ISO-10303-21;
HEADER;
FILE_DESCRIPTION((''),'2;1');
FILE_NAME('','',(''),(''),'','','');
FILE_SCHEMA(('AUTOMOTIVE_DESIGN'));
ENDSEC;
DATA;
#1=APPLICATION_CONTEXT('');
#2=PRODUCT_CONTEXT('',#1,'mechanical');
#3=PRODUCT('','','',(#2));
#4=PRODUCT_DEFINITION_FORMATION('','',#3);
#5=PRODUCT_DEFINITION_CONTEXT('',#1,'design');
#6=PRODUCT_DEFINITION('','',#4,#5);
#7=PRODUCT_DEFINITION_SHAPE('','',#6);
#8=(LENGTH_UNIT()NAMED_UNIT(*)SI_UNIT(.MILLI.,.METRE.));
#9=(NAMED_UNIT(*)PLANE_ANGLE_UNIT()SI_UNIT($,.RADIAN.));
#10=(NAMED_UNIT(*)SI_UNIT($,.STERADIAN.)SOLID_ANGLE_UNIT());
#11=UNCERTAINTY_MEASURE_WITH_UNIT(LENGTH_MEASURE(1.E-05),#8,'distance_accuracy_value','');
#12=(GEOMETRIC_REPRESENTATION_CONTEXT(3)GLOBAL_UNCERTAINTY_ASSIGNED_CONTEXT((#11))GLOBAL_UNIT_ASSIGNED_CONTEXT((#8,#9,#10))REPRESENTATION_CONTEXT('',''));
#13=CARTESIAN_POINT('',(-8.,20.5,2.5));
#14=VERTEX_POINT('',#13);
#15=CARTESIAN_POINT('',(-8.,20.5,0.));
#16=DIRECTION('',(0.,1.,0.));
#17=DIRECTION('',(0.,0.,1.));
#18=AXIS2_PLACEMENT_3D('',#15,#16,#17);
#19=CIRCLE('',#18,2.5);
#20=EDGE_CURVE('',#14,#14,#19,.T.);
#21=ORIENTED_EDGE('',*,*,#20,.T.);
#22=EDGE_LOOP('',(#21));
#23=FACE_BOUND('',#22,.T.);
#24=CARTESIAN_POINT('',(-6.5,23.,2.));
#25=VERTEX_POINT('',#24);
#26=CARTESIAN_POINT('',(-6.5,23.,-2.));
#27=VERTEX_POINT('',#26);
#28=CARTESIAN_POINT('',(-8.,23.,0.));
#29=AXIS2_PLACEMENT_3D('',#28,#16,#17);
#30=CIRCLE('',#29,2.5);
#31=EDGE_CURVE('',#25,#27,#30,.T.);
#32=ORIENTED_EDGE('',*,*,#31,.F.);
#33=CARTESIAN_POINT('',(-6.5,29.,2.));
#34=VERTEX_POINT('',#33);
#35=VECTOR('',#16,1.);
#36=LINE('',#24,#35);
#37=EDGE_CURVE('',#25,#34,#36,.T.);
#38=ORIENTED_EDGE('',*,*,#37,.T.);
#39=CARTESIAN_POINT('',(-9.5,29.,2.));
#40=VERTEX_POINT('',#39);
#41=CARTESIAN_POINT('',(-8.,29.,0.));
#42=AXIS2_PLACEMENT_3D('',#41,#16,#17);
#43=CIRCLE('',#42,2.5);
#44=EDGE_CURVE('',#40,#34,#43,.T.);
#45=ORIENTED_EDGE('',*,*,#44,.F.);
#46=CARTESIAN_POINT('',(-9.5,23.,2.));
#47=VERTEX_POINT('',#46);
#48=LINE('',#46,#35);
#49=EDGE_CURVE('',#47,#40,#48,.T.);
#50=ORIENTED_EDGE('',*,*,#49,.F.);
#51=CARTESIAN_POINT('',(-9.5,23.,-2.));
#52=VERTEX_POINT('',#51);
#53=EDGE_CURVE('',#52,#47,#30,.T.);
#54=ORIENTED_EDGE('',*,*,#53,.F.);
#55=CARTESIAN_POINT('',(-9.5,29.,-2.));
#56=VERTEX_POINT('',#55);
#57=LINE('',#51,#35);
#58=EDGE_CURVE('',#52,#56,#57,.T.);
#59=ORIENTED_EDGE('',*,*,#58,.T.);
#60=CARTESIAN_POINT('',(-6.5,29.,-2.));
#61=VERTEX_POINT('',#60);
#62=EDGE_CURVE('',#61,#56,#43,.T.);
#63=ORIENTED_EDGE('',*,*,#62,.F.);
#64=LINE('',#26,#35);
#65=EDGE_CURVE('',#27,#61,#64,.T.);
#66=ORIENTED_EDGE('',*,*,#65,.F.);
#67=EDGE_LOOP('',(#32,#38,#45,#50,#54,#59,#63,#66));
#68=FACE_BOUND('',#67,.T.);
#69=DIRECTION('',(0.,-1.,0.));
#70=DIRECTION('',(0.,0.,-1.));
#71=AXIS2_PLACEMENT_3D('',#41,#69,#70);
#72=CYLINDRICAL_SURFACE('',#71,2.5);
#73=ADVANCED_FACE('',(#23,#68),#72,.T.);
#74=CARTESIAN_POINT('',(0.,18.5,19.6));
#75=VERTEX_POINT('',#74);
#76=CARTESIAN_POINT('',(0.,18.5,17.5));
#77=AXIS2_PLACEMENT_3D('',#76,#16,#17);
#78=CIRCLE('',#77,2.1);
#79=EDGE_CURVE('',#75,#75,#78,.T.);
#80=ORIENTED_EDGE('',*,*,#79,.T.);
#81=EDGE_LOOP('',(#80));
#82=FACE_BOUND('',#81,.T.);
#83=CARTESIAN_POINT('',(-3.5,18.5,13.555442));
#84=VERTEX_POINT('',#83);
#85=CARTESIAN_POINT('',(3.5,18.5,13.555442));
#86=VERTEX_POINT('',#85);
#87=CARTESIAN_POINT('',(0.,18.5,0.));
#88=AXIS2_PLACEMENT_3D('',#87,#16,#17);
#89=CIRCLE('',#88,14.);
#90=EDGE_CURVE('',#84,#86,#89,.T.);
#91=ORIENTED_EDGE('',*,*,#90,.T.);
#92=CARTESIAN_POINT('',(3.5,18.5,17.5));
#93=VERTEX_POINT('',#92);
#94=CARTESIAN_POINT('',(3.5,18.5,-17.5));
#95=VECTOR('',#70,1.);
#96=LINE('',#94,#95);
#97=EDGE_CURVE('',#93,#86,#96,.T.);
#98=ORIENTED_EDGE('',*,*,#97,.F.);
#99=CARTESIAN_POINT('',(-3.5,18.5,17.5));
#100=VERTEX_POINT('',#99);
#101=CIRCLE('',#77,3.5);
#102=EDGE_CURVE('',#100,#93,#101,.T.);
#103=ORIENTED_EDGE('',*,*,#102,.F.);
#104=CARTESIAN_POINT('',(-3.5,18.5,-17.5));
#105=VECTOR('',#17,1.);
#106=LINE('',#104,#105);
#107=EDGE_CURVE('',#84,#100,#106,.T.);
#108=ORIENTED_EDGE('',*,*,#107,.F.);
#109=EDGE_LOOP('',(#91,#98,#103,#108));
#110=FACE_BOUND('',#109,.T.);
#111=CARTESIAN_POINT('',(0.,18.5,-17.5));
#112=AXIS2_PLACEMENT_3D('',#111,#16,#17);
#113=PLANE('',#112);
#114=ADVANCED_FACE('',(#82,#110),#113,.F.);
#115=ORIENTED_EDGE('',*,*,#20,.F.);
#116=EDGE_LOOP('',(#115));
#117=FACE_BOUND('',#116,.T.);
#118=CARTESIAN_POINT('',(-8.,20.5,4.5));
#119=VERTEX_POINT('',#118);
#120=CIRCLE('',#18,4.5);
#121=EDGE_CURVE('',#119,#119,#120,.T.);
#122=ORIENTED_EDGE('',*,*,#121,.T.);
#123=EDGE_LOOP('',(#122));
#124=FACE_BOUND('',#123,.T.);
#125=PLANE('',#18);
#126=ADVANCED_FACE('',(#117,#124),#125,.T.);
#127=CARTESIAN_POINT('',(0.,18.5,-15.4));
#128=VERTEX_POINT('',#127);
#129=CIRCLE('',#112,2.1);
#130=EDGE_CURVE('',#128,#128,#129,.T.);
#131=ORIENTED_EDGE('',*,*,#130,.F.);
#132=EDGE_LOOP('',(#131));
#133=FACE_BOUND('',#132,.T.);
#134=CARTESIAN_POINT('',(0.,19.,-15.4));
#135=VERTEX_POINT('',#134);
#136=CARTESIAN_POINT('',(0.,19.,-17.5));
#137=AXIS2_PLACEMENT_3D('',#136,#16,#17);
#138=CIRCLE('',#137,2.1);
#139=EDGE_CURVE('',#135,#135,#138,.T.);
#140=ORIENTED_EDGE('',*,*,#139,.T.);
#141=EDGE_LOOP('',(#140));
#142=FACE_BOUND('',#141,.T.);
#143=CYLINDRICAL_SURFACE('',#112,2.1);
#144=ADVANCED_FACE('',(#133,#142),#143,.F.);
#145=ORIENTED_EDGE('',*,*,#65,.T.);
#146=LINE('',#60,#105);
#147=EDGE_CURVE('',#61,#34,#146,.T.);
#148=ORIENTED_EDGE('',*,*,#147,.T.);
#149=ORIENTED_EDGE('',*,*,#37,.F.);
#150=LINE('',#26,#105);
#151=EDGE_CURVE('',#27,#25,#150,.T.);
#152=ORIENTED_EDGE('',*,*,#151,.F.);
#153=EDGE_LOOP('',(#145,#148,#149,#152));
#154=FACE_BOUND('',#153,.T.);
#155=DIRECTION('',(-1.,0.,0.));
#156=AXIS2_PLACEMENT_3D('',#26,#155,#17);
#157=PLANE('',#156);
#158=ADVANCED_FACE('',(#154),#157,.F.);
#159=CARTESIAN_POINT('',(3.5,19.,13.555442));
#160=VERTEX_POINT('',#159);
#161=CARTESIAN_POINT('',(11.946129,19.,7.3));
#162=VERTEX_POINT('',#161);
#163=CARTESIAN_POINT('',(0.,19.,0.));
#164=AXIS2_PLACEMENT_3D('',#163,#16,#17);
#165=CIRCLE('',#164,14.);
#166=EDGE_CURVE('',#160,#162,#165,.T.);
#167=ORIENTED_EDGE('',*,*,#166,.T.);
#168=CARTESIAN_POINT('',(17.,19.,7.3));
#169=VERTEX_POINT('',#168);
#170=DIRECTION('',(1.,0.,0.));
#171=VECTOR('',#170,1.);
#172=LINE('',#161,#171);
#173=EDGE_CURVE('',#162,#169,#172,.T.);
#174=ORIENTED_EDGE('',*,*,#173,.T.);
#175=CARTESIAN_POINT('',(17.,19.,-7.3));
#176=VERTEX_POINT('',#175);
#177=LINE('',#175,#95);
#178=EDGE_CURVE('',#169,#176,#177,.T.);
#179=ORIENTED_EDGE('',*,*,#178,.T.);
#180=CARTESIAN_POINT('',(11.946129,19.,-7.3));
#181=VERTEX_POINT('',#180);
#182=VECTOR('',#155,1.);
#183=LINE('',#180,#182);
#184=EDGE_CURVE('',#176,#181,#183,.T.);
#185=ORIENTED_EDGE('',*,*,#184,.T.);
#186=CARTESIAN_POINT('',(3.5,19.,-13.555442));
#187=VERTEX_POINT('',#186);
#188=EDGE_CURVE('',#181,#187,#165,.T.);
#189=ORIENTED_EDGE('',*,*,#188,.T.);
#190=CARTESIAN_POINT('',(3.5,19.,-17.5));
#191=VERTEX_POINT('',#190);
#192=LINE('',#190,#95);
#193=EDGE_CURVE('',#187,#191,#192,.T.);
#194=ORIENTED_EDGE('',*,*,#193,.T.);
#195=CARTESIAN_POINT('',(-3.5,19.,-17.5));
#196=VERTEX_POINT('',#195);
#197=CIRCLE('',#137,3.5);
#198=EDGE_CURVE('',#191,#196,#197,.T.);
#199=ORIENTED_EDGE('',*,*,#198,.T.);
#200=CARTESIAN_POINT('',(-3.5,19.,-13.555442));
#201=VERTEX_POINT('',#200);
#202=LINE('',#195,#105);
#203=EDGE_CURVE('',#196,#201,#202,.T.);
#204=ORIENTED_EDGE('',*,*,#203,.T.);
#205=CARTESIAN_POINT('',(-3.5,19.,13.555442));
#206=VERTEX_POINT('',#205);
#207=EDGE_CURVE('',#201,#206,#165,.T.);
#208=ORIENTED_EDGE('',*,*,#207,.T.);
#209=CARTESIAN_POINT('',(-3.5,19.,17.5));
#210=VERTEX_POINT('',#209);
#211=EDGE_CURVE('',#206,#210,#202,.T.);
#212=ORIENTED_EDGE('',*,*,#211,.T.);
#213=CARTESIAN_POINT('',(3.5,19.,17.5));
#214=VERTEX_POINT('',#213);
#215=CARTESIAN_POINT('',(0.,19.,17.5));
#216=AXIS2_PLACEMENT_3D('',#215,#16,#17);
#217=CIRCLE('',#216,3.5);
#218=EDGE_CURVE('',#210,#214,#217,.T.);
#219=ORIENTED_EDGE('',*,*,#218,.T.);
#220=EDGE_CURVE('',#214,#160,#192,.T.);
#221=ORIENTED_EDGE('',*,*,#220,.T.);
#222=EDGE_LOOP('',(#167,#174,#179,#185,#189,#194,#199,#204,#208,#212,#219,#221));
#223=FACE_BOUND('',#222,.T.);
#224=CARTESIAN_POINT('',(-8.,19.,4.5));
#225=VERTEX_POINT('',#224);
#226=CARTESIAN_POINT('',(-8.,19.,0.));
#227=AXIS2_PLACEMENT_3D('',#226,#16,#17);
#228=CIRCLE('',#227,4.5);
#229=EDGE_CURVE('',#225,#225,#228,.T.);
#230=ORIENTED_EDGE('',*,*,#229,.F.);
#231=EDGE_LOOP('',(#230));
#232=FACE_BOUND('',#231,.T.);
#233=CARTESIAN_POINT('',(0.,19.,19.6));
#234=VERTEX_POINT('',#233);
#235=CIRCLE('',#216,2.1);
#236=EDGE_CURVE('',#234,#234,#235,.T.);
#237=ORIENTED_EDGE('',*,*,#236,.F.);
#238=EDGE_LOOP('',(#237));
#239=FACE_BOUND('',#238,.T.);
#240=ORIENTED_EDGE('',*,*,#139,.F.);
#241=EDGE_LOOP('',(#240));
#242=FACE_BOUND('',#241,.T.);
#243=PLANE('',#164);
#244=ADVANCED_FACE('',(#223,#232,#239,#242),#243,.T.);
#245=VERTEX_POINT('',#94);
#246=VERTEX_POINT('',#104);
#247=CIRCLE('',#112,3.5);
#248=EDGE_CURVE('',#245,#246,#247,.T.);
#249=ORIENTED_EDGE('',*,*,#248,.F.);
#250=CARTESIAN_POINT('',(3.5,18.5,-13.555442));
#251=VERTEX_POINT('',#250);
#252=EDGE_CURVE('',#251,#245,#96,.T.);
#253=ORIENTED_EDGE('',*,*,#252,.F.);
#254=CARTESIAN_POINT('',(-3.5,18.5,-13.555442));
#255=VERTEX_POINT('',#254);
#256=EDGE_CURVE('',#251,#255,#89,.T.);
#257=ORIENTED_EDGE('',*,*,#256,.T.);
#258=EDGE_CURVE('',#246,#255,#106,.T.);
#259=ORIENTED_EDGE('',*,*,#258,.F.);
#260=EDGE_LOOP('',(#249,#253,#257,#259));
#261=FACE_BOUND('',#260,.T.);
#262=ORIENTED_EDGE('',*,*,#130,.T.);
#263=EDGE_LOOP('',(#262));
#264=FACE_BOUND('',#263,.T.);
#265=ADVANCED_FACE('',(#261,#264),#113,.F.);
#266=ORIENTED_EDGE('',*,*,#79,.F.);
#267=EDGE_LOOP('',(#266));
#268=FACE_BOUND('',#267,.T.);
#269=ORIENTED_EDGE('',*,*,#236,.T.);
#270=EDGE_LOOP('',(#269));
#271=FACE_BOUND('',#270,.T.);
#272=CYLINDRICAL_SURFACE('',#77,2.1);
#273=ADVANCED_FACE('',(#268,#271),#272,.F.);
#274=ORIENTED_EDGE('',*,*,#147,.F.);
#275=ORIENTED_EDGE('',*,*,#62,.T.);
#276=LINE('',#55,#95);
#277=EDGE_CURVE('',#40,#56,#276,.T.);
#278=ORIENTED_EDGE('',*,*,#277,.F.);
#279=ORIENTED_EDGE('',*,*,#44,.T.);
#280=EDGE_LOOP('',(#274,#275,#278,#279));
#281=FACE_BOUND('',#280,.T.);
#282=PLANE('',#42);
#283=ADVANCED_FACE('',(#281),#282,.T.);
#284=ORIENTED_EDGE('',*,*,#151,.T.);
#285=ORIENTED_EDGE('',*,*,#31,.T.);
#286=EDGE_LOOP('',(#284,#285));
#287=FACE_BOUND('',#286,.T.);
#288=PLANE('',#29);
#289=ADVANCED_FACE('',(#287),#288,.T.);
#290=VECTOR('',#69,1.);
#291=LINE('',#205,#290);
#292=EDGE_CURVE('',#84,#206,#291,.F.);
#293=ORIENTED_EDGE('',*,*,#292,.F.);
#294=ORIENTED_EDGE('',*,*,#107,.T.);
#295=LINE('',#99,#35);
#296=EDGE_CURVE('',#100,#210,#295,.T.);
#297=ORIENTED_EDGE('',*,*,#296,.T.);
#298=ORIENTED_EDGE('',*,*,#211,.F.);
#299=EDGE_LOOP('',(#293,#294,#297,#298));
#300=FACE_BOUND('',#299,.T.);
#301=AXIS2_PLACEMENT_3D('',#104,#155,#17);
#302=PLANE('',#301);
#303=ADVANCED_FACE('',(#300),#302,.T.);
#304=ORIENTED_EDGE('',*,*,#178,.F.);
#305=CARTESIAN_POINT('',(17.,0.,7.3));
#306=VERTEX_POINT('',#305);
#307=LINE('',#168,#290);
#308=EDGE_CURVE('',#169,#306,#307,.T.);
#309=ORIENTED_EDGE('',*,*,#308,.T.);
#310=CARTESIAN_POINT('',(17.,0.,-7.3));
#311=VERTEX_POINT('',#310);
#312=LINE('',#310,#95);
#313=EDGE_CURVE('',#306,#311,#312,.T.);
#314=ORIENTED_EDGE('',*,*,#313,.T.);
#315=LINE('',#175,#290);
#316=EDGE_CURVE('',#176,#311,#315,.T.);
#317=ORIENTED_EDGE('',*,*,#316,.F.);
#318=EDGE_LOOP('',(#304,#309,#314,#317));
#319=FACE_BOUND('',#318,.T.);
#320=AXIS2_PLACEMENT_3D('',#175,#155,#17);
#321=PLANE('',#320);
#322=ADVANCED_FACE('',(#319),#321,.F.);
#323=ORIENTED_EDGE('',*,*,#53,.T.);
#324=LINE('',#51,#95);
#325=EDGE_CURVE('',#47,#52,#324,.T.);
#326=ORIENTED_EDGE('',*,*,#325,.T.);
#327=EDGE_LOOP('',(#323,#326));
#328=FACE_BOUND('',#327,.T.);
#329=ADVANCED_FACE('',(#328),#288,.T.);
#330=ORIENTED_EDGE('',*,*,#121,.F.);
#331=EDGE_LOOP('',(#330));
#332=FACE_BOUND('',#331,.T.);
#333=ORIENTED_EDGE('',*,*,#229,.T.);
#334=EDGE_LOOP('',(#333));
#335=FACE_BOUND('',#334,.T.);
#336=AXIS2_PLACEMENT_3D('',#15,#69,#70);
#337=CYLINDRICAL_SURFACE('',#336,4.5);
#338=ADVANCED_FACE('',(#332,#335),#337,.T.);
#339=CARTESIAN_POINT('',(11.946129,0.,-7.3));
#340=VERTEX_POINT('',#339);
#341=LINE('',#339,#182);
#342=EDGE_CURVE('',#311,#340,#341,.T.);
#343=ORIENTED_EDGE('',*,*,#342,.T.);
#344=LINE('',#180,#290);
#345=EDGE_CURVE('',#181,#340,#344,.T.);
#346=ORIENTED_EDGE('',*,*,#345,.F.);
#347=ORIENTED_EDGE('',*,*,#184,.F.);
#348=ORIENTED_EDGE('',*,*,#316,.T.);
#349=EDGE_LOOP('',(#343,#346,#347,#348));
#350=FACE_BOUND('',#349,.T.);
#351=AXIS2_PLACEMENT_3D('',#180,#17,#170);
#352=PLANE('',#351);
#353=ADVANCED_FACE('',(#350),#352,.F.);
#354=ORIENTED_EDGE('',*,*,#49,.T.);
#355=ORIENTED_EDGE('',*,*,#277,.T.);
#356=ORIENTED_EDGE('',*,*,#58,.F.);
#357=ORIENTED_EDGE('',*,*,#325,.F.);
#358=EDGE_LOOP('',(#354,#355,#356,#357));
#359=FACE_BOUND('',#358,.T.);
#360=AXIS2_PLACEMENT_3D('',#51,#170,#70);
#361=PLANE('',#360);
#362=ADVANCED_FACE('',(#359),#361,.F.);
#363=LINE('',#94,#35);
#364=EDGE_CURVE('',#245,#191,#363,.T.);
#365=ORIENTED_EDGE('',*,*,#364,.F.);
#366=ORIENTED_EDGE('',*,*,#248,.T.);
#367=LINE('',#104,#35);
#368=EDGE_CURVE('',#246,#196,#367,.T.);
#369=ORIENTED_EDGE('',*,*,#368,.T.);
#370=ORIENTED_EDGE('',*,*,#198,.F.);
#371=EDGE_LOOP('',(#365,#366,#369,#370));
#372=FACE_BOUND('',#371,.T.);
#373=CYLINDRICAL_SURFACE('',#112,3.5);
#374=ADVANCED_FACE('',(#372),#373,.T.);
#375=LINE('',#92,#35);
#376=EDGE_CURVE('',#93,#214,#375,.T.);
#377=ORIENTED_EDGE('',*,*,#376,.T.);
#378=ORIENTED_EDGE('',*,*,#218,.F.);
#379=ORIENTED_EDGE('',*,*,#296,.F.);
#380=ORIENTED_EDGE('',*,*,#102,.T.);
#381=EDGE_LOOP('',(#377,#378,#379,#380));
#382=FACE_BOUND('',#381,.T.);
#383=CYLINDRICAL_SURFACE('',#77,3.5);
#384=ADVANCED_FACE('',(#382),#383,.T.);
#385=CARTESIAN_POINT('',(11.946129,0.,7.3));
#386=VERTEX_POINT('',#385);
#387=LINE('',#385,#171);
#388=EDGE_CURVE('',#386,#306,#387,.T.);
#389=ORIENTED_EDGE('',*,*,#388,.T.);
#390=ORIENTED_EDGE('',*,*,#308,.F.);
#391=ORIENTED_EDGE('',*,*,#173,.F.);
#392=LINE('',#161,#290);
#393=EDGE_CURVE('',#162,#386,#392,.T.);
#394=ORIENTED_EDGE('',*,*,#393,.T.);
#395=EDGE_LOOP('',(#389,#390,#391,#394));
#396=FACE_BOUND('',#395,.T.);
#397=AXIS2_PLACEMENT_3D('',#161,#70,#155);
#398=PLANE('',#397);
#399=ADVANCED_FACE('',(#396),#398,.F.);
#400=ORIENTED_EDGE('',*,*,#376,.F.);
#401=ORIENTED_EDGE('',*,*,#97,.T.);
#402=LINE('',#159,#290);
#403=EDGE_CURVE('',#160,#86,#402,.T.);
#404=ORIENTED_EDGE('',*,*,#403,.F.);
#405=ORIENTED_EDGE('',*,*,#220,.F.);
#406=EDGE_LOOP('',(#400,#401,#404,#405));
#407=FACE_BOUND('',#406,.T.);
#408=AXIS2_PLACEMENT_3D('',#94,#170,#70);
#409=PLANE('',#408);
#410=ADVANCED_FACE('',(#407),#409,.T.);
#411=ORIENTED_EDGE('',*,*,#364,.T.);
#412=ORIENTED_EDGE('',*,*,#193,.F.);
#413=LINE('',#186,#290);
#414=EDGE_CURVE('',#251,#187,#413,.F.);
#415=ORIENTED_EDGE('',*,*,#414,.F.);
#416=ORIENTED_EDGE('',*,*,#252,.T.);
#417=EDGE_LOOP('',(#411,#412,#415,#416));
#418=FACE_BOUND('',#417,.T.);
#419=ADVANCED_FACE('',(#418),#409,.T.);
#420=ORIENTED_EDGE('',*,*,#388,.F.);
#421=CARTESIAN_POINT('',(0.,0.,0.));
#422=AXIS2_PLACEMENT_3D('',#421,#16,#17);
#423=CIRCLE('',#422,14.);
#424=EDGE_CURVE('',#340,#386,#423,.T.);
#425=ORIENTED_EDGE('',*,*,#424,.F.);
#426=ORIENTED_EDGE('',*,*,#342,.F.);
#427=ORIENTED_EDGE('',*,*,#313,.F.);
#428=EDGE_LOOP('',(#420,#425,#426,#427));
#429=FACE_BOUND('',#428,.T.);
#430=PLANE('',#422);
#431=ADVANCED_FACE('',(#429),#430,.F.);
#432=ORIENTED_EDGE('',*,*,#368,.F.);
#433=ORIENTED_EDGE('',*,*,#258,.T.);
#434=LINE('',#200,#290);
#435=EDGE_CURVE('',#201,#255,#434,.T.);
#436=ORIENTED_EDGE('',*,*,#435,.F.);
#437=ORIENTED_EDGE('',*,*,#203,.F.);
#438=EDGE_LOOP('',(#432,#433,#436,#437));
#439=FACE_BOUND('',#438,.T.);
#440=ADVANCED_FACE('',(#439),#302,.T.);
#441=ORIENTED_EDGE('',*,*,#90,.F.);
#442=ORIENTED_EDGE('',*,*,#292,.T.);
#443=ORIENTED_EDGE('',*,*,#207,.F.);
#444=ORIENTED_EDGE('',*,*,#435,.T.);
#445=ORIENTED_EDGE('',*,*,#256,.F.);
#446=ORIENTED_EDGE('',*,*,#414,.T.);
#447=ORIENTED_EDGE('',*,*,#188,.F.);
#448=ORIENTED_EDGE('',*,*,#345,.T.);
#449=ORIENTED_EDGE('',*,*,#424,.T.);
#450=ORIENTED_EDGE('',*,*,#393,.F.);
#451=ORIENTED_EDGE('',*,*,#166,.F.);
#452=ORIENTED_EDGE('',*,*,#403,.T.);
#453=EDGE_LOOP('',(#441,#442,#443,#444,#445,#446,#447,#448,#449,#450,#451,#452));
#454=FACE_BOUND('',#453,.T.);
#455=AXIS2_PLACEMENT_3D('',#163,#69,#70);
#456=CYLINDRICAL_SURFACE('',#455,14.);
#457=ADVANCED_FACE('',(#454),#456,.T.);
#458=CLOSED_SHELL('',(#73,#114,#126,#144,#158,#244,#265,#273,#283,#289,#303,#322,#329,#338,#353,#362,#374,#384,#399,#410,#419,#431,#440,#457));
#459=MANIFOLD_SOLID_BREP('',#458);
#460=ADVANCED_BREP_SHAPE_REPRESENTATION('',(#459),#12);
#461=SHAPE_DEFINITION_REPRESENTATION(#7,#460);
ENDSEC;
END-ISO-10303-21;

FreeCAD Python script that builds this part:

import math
import FreeCAD as App
import Part
import Sketcher

V = App.Vector
Q = App.Units.Quantity

doc = App.newDocument("Part")
body = doc.addObject("PartDesign::Body", "Body")

# Sketch on XZ plane
sketch1 = body.newObject("Sketcher::SketchObject", "Sketch")
sketch1.AttachmentSupport = (doc.getObject("XZ_Plane"), [""])
sketch1.MapMode = "FlatFace"
sketch1.addGeometry([
    Part.LineSegment(V(17, -7.3, 0), V(11.946129, -7.3, 0)),
    Part.ArcOfCircle(Part.Circle(V(0, 0, 0), V(0, 0, 1), 14), math.radians(31.428126), math.radians(328.571874)),
    Part.LineSegment(V(11.946129, 7.3, 0), V(17, 7.3, 0)),
    Part.LineSegment(V(17, 7.3, 0), V(17, -7.3, 0)),
], False)
sketch1.addConstraint([
    Sketcher.Constraint("Coincident", 0, 2, 1, 2),
    Sketcher.Constraint("Coincident", 1, 1, 2, 1),
    Sketcher.Constraint("Coincident", 2, 2, 3, 1),
    Sketcher.Constraint("Coincident", 3, 2, 0, 1),
    Sketcher.Constraint("Horizontal", 0),
    Sketcher.Constraint("Horizontal", 2),
    Sketcher.Constraint("Vertical", 3),
    Sketcher.Constraint("Coincident", 1, 3, -1, 1),
    Sketcher.Constraint("Vertical", 0, 2, 1, 1),
    Sketcher.Constraint("Radius", 1, Q("14 mm")),
    Sketcher.Constraint("DistanceY", 3, 2, 3, 1, Q("14.6 mm")),
    Sketcher.Constraint("DistanceX", -1, 1, 2, 2, Q("17 mm")),
])
pad1 = body.newObject("PartDesign::Pad", "Pad")
pad1.Profile = sketch1
pad1.Length = 19
pad1.Reversed = True

# Sketch on XZ plane
sketch2 = body.newObject("Sketcher::SketchObject", "Sketch001")
sketch2.AttachmentSupport = (doc.getObject("XZ_Plane"), [""])
sketch2.MapMode = "FlatFace"
sketch2.AttachmentOffset = App.Placement(V(0, 0, -19), App.Rotation())
sketch2.addGeometry([
    Part.LineSegment(V(3.5, 17.5, 0), V(3.5, -17.5, 0)),  # 0
    Part.ArcOfCircle(Part.Circle(V(0, -17.5, 0), V(0, 0, 1), 3.5), math.radians(180), math.radians(360)),  # 1
    Part.LineSegment(V(-3.5, -17.5, 0), V(-3.5, 17.5, 0)),  # 2
    Part.ArcOfCircle(Part.Circle(V(0, 17.5, 0), V(0, 0, 1), 3.5), math.radians(0), math.radians(180)),  # 3
    Part.Circle(V(0, 17.5, 0), V(0, 0, 1), 2.1),  # 4
    Part.Circle(V(0, -17.5, 0), V(0, 0, 1), 2.1),  # 5
], False)
sketch2.addConstraint([
    Sketcher.Constraint("Tangent", 0, 2, 1, 2),
    Sketcher.Constraint("Tangent", 1, 1, 2, 1),
    Sketcher.Constraint("Tangent", 2, 2, 3, 2),
    Sketcher.Constraint("Tangent", 3, 1, 0, 1),
    Sketcher.Constraint("Vertical", 0),
    Sketcher.Constraint("Vertical", 2),
    Sketcher.Constraint("Coincident", 4, 3, 3, 3),
    Sketcher.Constraint("Coincident", 5, 3, 1, 3),
    Sketcher.Constraint("Equal", 4, 5),
    Sketcher.Constraint("Symmetric", 1, 3, 3, 3, -1, 1),
    Sketcher.Constraint("Diameter", 4, Q("4.2 mm")),
    Sketcher.Constraint("Radius", 1, Q("3.5 mm")),
    Sketcher.Constraint("DistanceY", 0, 2, 0, 1, Q("35 mm")),
])
pad2 = body.newObject("PartDesign::Pad", "Pad001")
pad2.Profile = sketch2
pad2.Length = 0.5

# Sketch on XZ plane
sketch3 = body.newObject("Sketcher::SketchObject", "Sketch002")
sketch3.AttachmentSupport = (doc.getObject("XZ_Plane"), [""])
sketch3.MapMode = "FlatFace"
sketch3.AttachmentOffset = App.Placement(V(0, 0, -19), App.Rotation())
sketch3.addGeometry(Part.Circle(V(-8, 0, 0), V(0, 0, 1), 4.5), False)
sketch3.addConstraint([
    Sketcher.Constraint("PointOnObject", 0, 3, -1),
    Sketcher.Constraint("Diameter", 0, Q("9 mm")),
    Sketcher.Constraint("DistanceX", 0, 3, -1, 1, Q("8 mm")),
])
pad3 = body.newObject("PartDesign::Pad", "Pad002")
pad3.Profile = sketch3
pad3.Length = 1.5
pad3.Reversed = True

# Sketch on XZ plane
sketch4 = body.newObject("Sketcher::SketchObject", "Sketch003")
sketch4.AttachmentSupport = (doc.getObject("XZ_Plane"), [""])
sketch4.MapMode = "FlatFace"
sketch4.AttachmentOffset = App.Placement(V(0, 0, -20.5), App.Rotation())
sketch4.addGeometry(Part.Circle(V(-8, 0, 0), V(0, 0, 1), 2.5), False)
sketch4.addConstraint([
    Sketcher.Constraint("PointOnObject", 0, 3, -1),
    Sketcher.Constraint("Diameter", 0, Q("5 mm")),
    Sketcher.Constraint("DistanceX", 0, 3, -1, 1, Q("8 mm")),
])
pad4 = body.newObject("PartDesign::Pad", "Pad003")
pad4.Profile = sketch4
pad4.Length = 8.5
pad4.Reversed = True

# Sketch on XZ plane
sketch5 = body.newObject("Sketcher::SketchObject", "Sketch004")
sketch5.AttachmentSupport = (doc.getObject("XZ_Plane"), [""])
sketch5.MapMode = "FlatFace"
sketch5.AttachmentOffset = App.Placement(V(0, 0, -23), App.Rotation())
sketch5.addGeometry([
    Part.LineSegment(V(-9.5, 2, 0), V(-9.5, -2, 0)),
    Part.ArcOfCircle(Part.Circle(V(-8, 0, 0), V(0, 0, 1), 2.5), math.radians(126.869898), math.radians(233.130102)),
    Part.LineSegment(V(-6.5, -2, 0), V(-6.5, 2, 0)),
    Part.ArcOfCircle(Part.Circle(V(-8, 0, 0), V(0, 0, 1), 2.5), math.radians(-53.130102), math.radians(53.130102)),
], False)
sketch5.addConstraint([
    Sketcher.Constraint("Coincident", 0, 1, 1, 1),
    Sketcher.Constraint("Coincident", 1, 2, 0, 2),
    Sketcher.Constraint("Coincident", 2, 1, 3, 1),
    Sketcher.Constraint("Coincident", 3, 2, 2, 2),
    Sketcher.Constraint("Vertical", 0),
    Sketcher.Constraint("Vertical", 2),
    Sketcher.Constraint("Coincident", 3, 3, 1, 3),
    Sketcher.Constraint("Equal", 1, 3),
    Sketcher.Constraint("PointOnObject", 1, 3, -1),
    Sketcher.Constraint("Horizontal", 1, 2, 2, 1),
    Sketcher.Constraint("Radius", 1, Q("2.5 mm")),
    Sketcher.Constraint("DistanceY", 0, 2, 0, 1, Q("4 mm")),
    Sketcher.Constraint("DistanceX", 1, 3, -1, 1, Q("8 mm")),
])
pocket1 = body.newObject("PartDesign::Pocket", "Pocket")
pocket1.Profile = sketch5
pocket1.Length = 6

doc.recompute()
